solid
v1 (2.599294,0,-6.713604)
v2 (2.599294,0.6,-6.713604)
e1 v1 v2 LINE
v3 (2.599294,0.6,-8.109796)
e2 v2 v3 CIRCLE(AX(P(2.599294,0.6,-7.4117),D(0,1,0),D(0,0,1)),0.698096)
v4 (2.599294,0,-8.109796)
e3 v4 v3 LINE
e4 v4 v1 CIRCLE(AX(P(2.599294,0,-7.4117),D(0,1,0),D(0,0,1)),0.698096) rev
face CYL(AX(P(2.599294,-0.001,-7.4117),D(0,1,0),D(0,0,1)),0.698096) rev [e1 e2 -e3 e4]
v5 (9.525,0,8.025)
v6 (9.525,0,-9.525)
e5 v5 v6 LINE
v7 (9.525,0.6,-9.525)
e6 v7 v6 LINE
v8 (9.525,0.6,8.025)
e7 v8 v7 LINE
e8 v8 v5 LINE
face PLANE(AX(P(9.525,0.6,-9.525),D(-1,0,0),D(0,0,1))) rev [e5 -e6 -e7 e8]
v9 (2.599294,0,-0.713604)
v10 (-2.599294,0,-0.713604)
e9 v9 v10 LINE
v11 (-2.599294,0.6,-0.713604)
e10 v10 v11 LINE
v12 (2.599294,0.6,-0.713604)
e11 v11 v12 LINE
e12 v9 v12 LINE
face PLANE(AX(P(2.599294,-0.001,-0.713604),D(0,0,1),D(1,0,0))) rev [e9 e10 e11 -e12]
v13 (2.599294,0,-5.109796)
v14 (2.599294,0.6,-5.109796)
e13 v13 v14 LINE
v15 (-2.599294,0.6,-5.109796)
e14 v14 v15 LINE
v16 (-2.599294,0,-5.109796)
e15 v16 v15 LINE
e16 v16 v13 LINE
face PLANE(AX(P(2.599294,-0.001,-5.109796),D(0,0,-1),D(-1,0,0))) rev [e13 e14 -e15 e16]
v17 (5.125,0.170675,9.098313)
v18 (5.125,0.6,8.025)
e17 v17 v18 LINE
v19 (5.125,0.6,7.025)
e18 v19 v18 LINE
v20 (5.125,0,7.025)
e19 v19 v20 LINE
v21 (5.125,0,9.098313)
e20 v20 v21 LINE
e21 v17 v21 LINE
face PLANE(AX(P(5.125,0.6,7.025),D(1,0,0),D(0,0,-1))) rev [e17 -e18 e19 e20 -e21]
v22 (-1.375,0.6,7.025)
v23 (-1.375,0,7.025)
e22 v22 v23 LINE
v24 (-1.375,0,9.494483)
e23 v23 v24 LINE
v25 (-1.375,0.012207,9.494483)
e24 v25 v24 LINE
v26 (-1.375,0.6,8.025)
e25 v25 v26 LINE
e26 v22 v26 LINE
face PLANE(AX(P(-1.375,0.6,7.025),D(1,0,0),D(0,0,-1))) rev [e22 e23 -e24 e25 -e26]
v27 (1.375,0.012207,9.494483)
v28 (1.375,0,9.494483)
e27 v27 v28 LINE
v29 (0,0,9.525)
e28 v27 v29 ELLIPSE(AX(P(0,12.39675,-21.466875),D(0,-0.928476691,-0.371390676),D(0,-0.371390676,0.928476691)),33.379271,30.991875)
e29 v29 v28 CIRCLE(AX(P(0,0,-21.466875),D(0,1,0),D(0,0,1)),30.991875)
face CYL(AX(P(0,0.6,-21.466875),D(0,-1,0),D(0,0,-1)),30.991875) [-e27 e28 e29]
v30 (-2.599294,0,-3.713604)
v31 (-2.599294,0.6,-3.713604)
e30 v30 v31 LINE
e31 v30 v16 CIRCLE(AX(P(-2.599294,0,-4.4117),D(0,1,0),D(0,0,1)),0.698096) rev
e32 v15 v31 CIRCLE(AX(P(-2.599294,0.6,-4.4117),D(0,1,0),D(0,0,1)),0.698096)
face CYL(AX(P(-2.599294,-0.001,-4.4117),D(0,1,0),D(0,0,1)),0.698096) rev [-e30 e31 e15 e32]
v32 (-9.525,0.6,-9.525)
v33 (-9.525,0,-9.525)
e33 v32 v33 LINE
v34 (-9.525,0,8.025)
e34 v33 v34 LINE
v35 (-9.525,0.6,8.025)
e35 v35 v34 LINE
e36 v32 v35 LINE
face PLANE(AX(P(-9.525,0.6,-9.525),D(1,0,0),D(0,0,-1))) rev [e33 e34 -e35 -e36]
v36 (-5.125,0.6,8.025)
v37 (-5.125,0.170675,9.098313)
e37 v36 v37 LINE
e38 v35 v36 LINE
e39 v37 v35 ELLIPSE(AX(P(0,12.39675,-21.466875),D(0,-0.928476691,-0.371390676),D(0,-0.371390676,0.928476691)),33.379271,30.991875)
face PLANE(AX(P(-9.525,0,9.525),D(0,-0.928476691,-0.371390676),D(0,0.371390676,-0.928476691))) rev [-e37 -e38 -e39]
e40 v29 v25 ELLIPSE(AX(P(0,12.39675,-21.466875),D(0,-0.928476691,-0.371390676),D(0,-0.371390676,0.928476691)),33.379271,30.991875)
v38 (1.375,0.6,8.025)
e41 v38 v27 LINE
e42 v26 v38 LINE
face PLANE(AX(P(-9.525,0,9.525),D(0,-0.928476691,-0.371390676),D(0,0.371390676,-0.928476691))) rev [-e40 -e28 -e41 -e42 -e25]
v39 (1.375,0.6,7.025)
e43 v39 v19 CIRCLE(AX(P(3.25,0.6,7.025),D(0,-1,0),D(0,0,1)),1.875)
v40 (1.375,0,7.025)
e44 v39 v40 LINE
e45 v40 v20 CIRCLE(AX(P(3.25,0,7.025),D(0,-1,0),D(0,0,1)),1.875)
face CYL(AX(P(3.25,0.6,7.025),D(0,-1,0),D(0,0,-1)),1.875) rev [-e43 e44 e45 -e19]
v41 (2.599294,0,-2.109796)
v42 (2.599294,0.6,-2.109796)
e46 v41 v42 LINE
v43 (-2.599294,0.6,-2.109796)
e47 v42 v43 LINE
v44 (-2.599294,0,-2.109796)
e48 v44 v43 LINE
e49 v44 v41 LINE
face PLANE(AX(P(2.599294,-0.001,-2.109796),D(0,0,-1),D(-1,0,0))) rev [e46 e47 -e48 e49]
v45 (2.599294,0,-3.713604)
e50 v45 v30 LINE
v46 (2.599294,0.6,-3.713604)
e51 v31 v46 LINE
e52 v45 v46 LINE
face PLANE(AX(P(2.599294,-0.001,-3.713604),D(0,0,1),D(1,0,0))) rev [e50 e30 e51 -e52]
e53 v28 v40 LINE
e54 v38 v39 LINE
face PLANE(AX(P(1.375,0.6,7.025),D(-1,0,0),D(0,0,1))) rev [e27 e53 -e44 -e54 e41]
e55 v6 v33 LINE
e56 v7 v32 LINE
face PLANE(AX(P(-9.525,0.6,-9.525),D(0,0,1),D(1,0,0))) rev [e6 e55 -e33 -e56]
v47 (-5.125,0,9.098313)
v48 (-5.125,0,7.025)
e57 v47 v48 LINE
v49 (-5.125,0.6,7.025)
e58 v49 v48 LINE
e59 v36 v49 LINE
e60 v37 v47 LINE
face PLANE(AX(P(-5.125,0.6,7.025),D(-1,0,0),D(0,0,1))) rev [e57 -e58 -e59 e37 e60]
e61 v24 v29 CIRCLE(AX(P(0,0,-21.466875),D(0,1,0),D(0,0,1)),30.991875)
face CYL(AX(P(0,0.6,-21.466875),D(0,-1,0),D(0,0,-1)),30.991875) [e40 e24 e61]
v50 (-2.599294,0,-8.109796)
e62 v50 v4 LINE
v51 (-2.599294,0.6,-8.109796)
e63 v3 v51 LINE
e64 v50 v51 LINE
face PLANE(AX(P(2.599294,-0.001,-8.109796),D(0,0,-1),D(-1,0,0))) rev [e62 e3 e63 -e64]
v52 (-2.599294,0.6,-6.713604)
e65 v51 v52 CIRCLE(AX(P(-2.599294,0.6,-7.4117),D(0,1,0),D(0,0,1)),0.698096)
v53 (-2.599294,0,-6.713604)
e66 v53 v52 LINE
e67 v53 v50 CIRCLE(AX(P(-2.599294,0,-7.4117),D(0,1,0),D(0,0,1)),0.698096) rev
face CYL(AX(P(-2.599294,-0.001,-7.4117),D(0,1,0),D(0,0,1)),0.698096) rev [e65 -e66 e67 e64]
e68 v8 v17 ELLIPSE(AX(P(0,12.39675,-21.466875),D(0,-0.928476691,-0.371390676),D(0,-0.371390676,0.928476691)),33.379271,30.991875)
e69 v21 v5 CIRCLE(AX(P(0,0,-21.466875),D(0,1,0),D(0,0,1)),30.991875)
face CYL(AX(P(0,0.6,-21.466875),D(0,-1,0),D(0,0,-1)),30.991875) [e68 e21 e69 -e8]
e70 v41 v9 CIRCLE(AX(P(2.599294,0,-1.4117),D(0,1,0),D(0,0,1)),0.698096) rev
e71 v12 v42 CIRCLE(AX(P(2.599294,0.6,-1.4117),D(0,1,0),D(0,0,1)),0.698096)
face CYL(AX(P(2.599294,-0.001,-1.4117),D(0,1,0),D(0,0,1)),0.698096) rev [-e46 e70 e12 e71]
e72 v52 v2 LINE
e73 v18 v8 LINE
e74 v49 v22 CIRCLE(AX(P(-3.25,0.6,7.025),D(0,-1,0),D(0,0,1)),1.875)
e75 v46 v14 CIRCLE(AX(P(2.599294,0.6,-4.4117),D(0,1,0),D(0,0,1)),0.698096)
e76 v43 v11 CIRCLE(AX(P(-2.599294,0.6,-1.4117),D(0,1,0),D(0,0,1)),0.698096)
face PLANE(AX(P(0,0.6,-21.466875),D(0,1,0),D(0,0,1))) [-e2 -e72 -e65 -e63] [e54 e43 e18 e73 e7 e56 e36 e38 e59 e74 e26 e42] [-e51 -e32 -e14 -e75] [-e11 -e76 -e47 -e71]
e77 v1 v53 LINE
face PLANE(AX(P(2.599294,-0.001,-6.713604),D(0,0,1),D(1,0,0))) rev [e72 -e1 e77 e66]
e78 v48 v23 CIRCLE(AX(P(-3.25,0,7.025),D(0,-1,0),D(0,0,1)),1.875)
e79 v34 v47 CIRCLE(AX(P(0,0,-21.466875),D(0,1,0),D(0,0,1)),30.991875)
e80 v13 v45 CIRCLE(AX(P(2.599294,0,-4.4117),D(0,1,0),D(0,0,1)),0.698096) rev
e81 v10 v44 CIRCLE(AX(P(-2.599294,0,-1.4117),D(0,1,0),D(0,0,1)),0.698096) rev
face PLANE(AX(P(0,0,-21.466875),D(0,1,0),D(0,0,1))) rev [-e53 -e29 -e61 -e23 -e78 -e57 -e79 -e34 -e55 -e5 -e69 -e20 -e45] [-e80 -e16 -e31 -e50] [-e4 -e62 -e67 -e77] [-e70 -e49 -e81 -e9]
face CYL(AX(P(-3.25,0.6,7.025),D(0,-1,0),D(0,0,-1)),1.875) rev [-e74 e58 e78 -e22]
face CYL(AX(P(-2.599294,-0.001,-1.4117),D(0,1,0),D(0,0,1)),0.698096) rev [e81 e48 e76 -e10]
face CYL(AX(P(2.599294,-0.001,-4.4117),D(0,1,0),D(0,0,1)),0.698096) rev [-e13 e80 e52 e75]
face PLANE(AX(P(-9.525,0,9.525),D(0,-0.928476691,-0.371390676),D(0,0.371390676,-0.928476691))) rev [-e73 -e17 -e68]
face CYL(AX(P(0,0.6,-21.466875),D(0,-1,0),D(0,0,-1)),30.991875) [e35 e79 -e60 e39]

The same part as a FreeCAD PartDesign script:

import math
import FreeCAD as App
import Part
import Sketcher

V = App.Vector
Q = App.Units.Quantity


def add_polygon(sketch, points):
    """Adds a closed chain of lines whose ends are joined by coincident constraints."""
    first, n = sketch.GeometryCount, len(points)
    for a, b in zip(points, points[1:] + points[:1]):
        sketch.addGeometry(Part.LineSegment(App.Vector(*a, 0), App.Vector(*b, 0)), False)
    for i in range(n):
        sketch.addConstraint(Sketcher.Constraint("Coincident", first + i, 2, first + (i + 1) % n, 1))

doc = App.newDocument("Part")
body = doc.addObject("PartDesign::Body", "Body")

sketch1 = doc.addObject("Sketcher::SketchObject", "Sketch")
body.addObject(sketch1)
sketch1.AttachmentSupport = (doc.XZ_Plane, [""])
sketch1.MapMode = "FlatFace"
sketch1.addGeometry([
    Part.LineSegment(V(-5.1, 9.1, 0), V(-5.1, 7, 0)),
    Part.ArcOfCircle(Part.Circle(V(-3.2, 7, 0), V(0, 0, 1), 1.9), math.radians(180), math.radians(360)),
    Part.LineSegment(V(-1.4, 7, 0), V(-1.4, 9.5, 0)),
    Part.ArcOfCircle(Part.Circle(V(0, -21.5, 0), V(0, 0, 1), 31), math.radians(87.46), math.radians(92.54)),
    Part.LineSegment(V(1.4, 9.5, 0), V(1.4, 7, 0)),
    Part.ArcOfCircle(Part.Circle(V(3.2, 7, 0), V(0, 0, 1), 1.9), math.radians(180), math.radians(360)),
    Part.LineSegment(V(5.1, 7, 0), V(5.1, 9.1, 0)),
    Part.ArcOfCircle(Part.Circle(V(0, -21.5, 0), V(0, 0, 1), 31), math.radians(72.1), math.radians(80.48)),
    Part.LineSegment(V(9.5, 8, 0), V(9.5, -9.5, 0)),
    Part.LineSegment(V(9.5, -9.5, 0), V(-9.5, -9.5, 0)),
    Part.LineSegment(V(-9.5, -9.5, 0), V(-9.5, 8, 0)),
    Part.ArcOfCircle(Part.Circle(V(0, -21.5, 0), V(0, 0, 1), 31), math.radians(99.52), math.radians(107.9)),
], False)
sketch1.addConstraint([
    Sketcher.Constraint("Tangent", 0, 2, 1, 1),
    Sketcher.Constraint("Tangent", 1, 2, 2, 1),
    Sketcher.Constraint("Coincident", 2, 2, 3, 2),
    Sketcher.Constraint("Coincident", 3, 1, 4, 1),
    Sketcher.Constraint("Tangent", 4, 2, 5, 1),
    Sketcher.Constraint("Tangent", 5, 2, 6, 1),
    Sketcher.Constraint("Coincident", 6, 2, 7, 2),
    Sketcher.Constraint("Coincident", 7, 1, 8, 1),
    Sketcher.Constraint("Coincident", 8, 2, 9, 1),
    Sketcher.Constraint("Coincident", 9, 2, 10, 1),
    Sketcher.Constraint("Coincident", 10, 2, 11, 2),
    Sketcher.Constraint("Coincident", 11, 1, 0, 1),
    Sketcher.Constraint("Vertical", 0),
    Sketcher.Constraint("Vertical", 2),
    Sketcher.Constraint("Vertical", 4),
    Sketcher.Constraint("Vertical", 6),
    Sketcher.Constraint("Vertical", 8),
    Sketcher.Constraint("Horizontal", 9),
    Sketcher.Constraint("Vertical", 10),
    Sketcher.Constraint("Coincident", 7, 3, 3, 3),
    Sketcher.Constraint("Coincident", 11, 3, 3, 3),
    Sketcher.Constraint("Equal", 1, 5),
    Sketcher.Constraint("Equal", 3, 7),
    Sketcher.Constraint("Equal", 7, 11),
    Sketcher.Constraint("Symmetric", 1, 3, 5, 3, -2),
    Sketcher.Constraint("Symmetric", 7, 1, 10, 2, -2),
    Sketcher.Constraint("Radius", 1, Q("1.875 mm")),
    Sketcher.Constraint("DistanceY", 5, 2, 7, 1, Q("1 mm")),
    Sketcher.Constraint("DistanceX", 9, 2, 9, 1, Q("19.05 mm")),
    Sketcher.Constraint("DistanceY", 8, 2, 8, 1, Q("17.55 mm")),
    Sketcher.Constraint("DistanceX", 1, 3, 5, 3, Q("6.5 mm")),
    Sketcher.Constraint("DistanceY", -1, 1, 1, 3, Q("7.025 mm")),
    Sketcher.Constraint("Radius", 3, Q("30.991875 mm")),
])
pad1 = doc.addObject("PartDesign::Pad", "Pad")
body.addObject(pad1)
pad1.Profile = sketch1
pad1.Length = 0.6
pad1.Reversed = True

sketch2 = doc.addObject("Sketcher::SketchObject", "Sketch001")
body.addObject(sketch2)
sketch2.AttachmentSupport = (doc.YZ_Plane, [""])
sketch2.MapMode = "FlatFace"
add_polygon(sketch2, [(0, 9.5), (0.6, 8), (0.6, 9.5)])
sketch2.addConstraint([
    Sketcher.Constraint("Vertical", 1),
    Sketcher.Constraint("Horizontal", 2),
    Sketcher.Constraint("PointOnObject", 2, 2, -2),
    Sketcher.Constraint("DistanceX", 2, 2, 2, 1, Q("0.6 mm")),
    Sketcher.Constraint("DistanceY", 1, 1, 1, 2, Q("1.5 mm")),
    Sketcher.Constraint("DistanceY", -1, 1, 0, 2, Q("8.025 mm")),
])
pocket1 = doc.addObject("PartDesign::Pocket", "Pocket")
body.addObject(pocket1)
pocket1.Profile = sketch2
pocket1.Type = "ThroughAll"
pocket1.Midplane = True

sketch3 = doc.addObject("Sketcher::SketchObject", "Sketch002")
body.addObject(sketch3)
sketch3.AttachmentSupport = (doc.XZ_Plane, [""])
sketch3.MapMode = "FlatFace"
sketch3.AttachmentOffset = App.Placement(V(0, 0, -0.6), App.Rotation())
sketch3.addGeometry([
    Part.LineSegment(V(-2.6, -6.7, 0), V(2.6, -6.7, 0)),
    Part.ArcOfCircle(Part.Circle(V(2.6, -7.4, 0), V(0, 0, 1), 0.7), math.radians(-90), math.radians(90)),
    Part.LineSegment(V(2.6, -8.1, 0), V(-2.6, -8.1, 0)),
    Part.ArcOfCircle(Part.Circle(V(-2.6, -7.4, 0), V(0, 0, 1), 0.7), math.radians(90), math.radians(270)),
], False)
sketch3.addConstraint([
    Sketcher.Constraint("Tangent", 0, 2, 1, 2),
    Sketcher.Constraint("Tangent", 1, 1, 2, 1),
    Sketcher.Constraint("Tangent", 2, 2, 3, 2),
    Sketcher.Constraint("Tangent", 3, 1, 0, 1),
    Sketcher.Constraint("Horizontal", 0),
    Sketcher.Constraint("Horizontal", 2),
    Sketcher.Constraint("Radius", 1, Q("0.698096 mm")),
    Sketcher.Constraint("DistanceY", 1, 3, -1, 1, Q("7.4117 mm")),
    Sketcher.Constraint("DistanceX", 0, 1, 0, 2, Q("5.198587 mm")),
    Sketcher.Constraint("DistanceX", -1, 1, 1, 3, Q("2.599294 mm")),
])
pocket2 = doc.addObject("PartDesign::Pocket", "Pocket001")
body.addObject(pocket2)
pocket2.Profile = sketch3
pocket2.Type = "UpToFirst"
pocket2.Reversed = True

sketch4 = doc.addObject("Sketcher::SketchObject", "Sketch003")
body.addObject(sketch4)
sketch4.AttachmentSupport = (doc.XZ_Plane, [""])
sketch4.MapMode = "FlatFace"
sketch4.AttachmentOffset = App.Placement(V(0, 0, -0.6), App.Rotation())
sketch4.addGeometry([
    Part.LineSegment(V(-2.6, -3.7, 0), V(2.6, -3.7, 0)),
    Part.ArcOfCircle(Part.Circle(V(2.6, -4.4, 0), V(0, 0, 1), 0.7), math.radians(-90), math.radians(90)),
    Part.LineSegment(V(2.6, -5.1, 0), V(-2.6, -5.1, 0)),
    Part.ArcOfCircle(Part.Circle(V(-2.6, -4.4, 0), V(0, 0, 1), 0.7), math.radians(90), math.radians(270)),
], False)
sketch4.addConstraint([
    Sketcher.Constraint("Tangent", 0, 2, 1, 2),
    Sketcher.Constraint("Tangent", 1, 1, 2, 1),
    Sketcher.Constraint("Tangent", 2, 2, 3, 2),
    Sketcher.Constraint("Tangent", 3, 1, 0, 1),
    Sketcher.Constraint("Horizontal", 0),
    Sketcher.Constraint("Horizontal", 2),
    Sketcher.Constraint("Radius", 1, Q("0.698096 mm")),
    Sketcher.Constraint("DistanceY", 1, 3, -1, 1, Q("4.4117 mm")),
    Sketcher.Constraint("DistanceX", 0, 1, 0, 2, Q("5.198587 mm")),
    Sketcher.Constraint("DistanceX", -1, 1, 1, 3, Q("2.599294 mm")),
])
pocket3 = doc.addObject("PartDesign::Pocket", "Pocket002")
body.addObject(pocket3)
pocket3.Profile = sketch4
pocket3.Type = "UpToFirst"
pocket3.Reversed = True

sketch5 = doc.addObject("Sketcher::SketchObject", "Sketch004")
body.addObject(sketch5)
sketch5.AttachmentSupport = (doc.XZ_Plane, [""])
sketch5.MapMode = "FlatFace"
sketch5.AttachmentOffset = App.Placement(V(0, 0, -0.6), App.Rotation())
sketch5.addGeometry([
    Part.LineSegment(V(-2.6, -0.7, 0), V(2.6, -0.7, 0)),
    Part.ArcOfCircle(Part.Circle(V(2.6, -1.4, 0), V(0, 0, 1), 0.7), math.radians(-90), math.radians(90)),
    Part.LineSegment(V(2.6, -2.1, 0), V(-2.6, -2.1, 0)),
    Part.ArcOfCircle(Part.Circle(V(-2.6, -1.4, 0), V(0, 0, 1), 0.7), math.radians(90), math.radians(270)),
], False)
sketch5.addConstraint([
    Sketcher.Constraint("Tangent", 0, 2, 1, 2),
    Sketcher.Constraint("Tangent", 1, 1, 2, 1),
    Sketcher.Constraint("Tangent", 2, 2, 3, 2),
    Sketcher.Constraint("Tangent", 3, 1, 0, 1),
    Sketcher.Constraint("Horizontal", 0),
    Sketcher.Constraint("Horizontal", 2),
    Sketcher.Constraint("Radius", 1, Q("0.698096 mm")),
    Sketcher.Constraint("DistanceY", 1, 3, -1, 1, Q("1.4117 mm")),
    Sketcher.Constraint("DistanceX", 0, 1, 0, 2, Q("5.198587 mm")),
    Sketcher.Constraint("DistanceX", -1, 1, 1, 3, Q("2.599294 mm")),
])
pocket4 = doc.addObject("PartDesign::Pocket", "Pocket003")
body.addObject(pocket4)
pocket4.Profile = sketch5
pocket4.Type = "UpToFirst"
pocket4.Reversed = True

doc.recompute()
